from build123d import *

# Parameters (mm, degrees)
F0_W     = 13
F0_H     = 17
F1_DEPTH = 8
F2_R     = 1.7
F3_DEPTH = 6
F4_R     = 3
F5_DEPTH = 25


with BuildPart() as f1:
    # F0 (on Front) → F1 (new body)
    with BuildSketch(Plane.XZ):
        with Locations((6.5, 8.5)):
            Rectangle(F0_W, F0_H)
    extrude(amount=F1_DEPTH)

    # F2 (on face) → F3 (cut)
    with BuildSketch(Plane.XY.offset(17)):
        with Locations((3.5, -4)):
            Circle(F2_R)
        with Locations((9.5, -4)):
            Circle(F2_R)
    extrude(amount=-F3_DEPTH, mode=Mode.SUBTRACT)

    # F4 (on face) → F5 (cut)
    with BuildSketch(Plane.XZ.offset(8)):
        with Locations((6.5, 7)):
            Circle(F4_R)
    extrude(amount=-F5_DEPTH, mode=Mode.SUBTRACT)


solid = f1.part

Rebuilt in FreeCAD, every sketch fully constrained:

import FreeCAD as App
import Part
import Sketcher
from FreeCAD import Vector
Q = App.Units.Quantity

doc = App.newDocument("Part")
body = doc.addObject("PartDesign::Body", "Body")

# Sketch on XZ plane
sketch1 = body.newObject("Sketcher::SketchObject", "Sketch")
sketch1.AttachmentSupport = (doc.getObject("XZ_Plane"), [""])
sketch1.MapMode = "FlatFace"
sketch1.addGeometry([
    Part.LineSegment(Vector(0, 17, 0), Vector(0, 0, 0)),
    Part.LineSegment(Vector(0, 0, 0), Vector(13, 0, 0)),
    Part.LineSegment(Vector(13, 0, 0), Vector(13, 17, 0)),
    Part.LineSegment(Vector(13, 17, 0), Vector(0, 17, 0)),
], False)
sketch1.addConstraint([
    Sketcher.Constraint("Coincident", 0, 2, 1, 1),
    Sketcher.Constraint("Coincident", 1, 2, 2, 1),
    Sketcher.Constraint("Coincident", 2, 2, 3, 1),
    Sketcher.Constraint("Coincident", 3, 2, 0, 1),
    Sketcher.Constraint("Vertical", 0),
    Sketcher.Constraint("Horizontal", 1),
    Sketcher.Constraint("Vertical", 2),
    Sketcher.Constraint("Horizontal", 3),
    Sketcher.Constraint("Coincident", 0, 2, -1, 1),
    Sketcher.Constraint("DistanceX", 1, 1, 1, 2, Q("13 mm")),
    Sketcher.Constraint("DistanceY", 0, 2, 0, 1, Q("17 mm")),
])
pad1 = body.newObject("PartDesign::Pad", "Pad")
pad1.Profile = sketch1
pad1.Length = 8

# Sketch on XY plane
sketch2 = body.newObject("Sketcher::SketchObject", "Sketch001")
sketch2.AttachmentSupport = (doc.getObject("XY_Plane"), [""])
sketch2.MapMode = "FlatFace"
sketch2.AttachmentOffset = App.Placement(Vector(0, 0, 17), App.Rotation())
sketch2.addGeometry([
    Part.Circle(Vector(3.5, -4, 0), Vector(0, 0, 1), 1.7),
    Part.Circle(Vector(9.5, -4, 0), Vector(0, 0, 1), 1.7),
], False)
sketch2.addConstraint([
    Sketcher.Constraint("Equal", 0, 1),
    Sketcher.Constraint("Horizontal", 0, 3, 1, 3),
    Sketcher.Constraint("Diameter", 0, Q("3.4 mm")),
    Sketcher.Constraint("DistanceY", 0, 3, -1, 1, Q("4 mm")),
    Sketcher.Constraint("DistanceX", 0, 3, 1, 3, Q("6 mm")),
    Sketcher.Constraint("DistanceX", -1, 1, 0, 3, Q("3.5 mm")),
])
pocket1 = body.newObject("PartDesign::Pocket", "Pocket")
pocket1.Profile = sketch2
pocket1.Length = 6

# Sketch on XZ plane
sketch3 = body.newObject("Sketcher::SketchObject", "Sketch002")
sketch3.AttachmentSupport = (doc.getObject("XZ_Plane"), [""])
sketch3.MapMode = "FlatFace"
sketch3.AttachmentOffset = App.Placement(Vector(0, 0, 8), App.Rotation())
sketch3.addGeometry(Part.Circle(Vector(6.5, 7, 0), Vector(0, 0, 1), 3), False)
sketch3.addConstraint([
    Sketcher.Constraint("Diameter", 0, Q("6 mm")),
    Sketcher.Constraint("DistanceY", -1, 1, 0, 3, Q("7 mm")),
    Sketcher.Constraint("DistanceX", -1, 1, 0, 3, Q("6.5 mm")),
])
pocket2 = body.newObject("PartDesign::Pocket", "Pocket001")
pocket2.Profile = sketch3
pocket2.Length = 25

doc.recompute()
